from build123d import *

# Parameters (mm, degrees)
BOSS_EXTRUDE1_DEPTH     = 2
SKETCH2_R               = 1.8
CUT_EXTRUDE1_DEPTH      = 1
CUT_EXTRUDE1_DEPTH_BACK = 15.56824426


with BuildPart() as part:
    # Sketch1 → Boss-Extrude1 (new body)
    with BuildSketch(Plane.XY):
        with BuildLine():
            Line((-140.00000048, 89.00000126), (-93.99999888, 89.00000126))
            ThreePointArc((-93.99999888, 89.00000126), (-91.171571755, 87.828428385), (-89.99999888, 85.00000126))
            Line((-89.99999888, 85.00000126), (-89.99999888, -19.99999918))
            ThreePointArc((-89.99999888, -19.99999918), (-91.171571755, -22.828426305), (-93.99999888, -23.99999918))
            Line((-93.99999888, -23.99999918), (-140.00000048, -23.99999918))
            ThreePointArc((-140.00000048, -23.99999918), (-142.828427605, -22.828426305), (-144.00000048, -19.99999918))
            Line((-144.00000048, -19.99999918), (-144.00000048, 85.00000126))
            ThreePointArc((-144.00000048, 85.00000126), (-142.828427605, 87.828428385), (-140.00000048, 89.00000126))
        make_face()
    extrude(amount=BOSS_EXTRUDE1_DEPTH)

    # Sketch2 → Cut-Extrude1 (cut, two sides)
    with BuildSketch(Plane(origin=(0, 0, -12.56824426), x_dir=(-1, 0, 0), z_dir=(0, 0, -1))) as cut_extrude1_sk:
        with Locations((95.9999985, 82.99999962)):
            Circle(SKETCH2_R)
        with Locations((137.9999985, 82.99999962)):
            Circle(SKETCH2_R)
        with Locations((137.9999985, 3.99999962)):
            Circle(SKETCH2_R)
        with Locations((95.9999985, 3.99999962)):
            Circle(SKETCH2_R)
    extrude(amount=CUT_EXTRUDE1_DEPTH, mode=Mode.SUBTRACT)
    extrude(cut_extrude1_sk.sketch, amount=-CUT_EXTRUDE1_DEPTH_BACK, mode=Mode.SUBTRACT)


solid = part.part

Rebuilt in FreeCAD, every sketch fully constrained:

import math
import FreeCAD as App
import Part
import Sketcher
Q = App.Units.Quantity

doc = App.newDocument("Part")
body = doc.addObject("PartDesign::Body", "Body")

# Sketch on XY plane
sketch1 = body.newObject("Sketcher::SketchObject", "Sketch")
sketch1.AttachmentSupport = (doc.getObject("XY_Plane"), [""])
sketch1.MapMode = "FlatFace"
sketch1.addGeometry([
    Part.LineSegment(App.Vector(-93.999999, 89.000001, 0), App.Vector(-140, 89.000001, 0)),  # 0
    Part.ArcOfCircle(Part.Circle(App.Vector(-140, 85.000001, 0), App.Vector(0, 0, 1), 4), math.radians(90), math.radians(180)),  # 1
    Part.LineSegment(App.Vector(-144, 85.000001, 0), App.Vector(-144, -19.999999, 0)),  # 2
    Part.ArcOfCircle(Part.Circle(App.Vector(-140, -19.999999, 0), App.Vector(0, 0, 1), 4), math.radians(180), math.radians(270)),  # 3
    Part.LineSegment(App.Vector(-140, -23.999999, 0), App.Vector(-93.999999, -23.999999, 0)),  # 4
    Part.ArcOfCircle(Part.Circle(App.Vector(-93.999999, -19.999999, 0), App.Vector(0, 0, 1), 4), math.radians(-90), math.radians(0)),  # 5
    Part.LineSegment(App.Vector(-89.999999, -19.999999, 0), App.Vector(-89.999999, 85.000001, 0)),  # 6
    Part.ArcOfCircle(Part.Circle(App.Vector(-93.999999, 85.000001, 0), App.Vector(0, 0, 1), 4), math.radians(0), math.radians(90)),  # 7
], False)
sketch1.addConstraint([
    Sketcher.Constraint("Tangent", 0, 2, 1, 1),
    Sketcher.Constraint("Tangent", 1, 2, 2, 1),
    Sketcher.Constraint("Tangent", 2, 2, 3, 1),
    Sketcher.Constraint("Tangent", 3, 2, 4, 1),
    Sketcher.Constraint("Tangent", 4, 2, 5, 1),
    Sketcher.Constraint("Tangent", 5, 2, 6, 1),
    Sketcher.Constraint("Tangent", 6, 2, 7, 1),
    Sketcher.Constraint("Tangent", 7, 2, 0, 1),
    Sketcher.Constraint("Horizontal", 0),
    Sketcher.Constraint("Vertical", 2),
    Sketcher.Constraint("Horizontal", 4),
    Sketcher.Constraint("Vertical", 6),
    Sketcher.Constraint("Equal", 1, 3),
    Sketcher.Constraint("Equal", 3, 5),
    Sketcher.Constraint("Equal", 5, 7),
    Sketcher.Constraint("Radius", 1, Q("4 mm")),
    Sketcher.Constraint("DistanceX", 0, 2, 0, 1, Q("46.000002 mm")),
    Sketcher.Constraint("DistanceY", 2, 2, 2, 1, Q("105 mm")),
    Sketcher.Constraint("DistanceX", 1, 3, -1, 1, Q("140 mm")),
    Sketcher.Constraint("DistanceY", -1, 1, 1, 3, Q("85.000001 mm")),
])
pad1 = body.newObject("PartDesign::Pad", "Pad")
pad1.Profile = sketch1
pad1.Length = 2

# Sketch on XY plane
sketch2 = body.newObject("Sketcher::SketchObject", "Sketch001")
sketch2.AttachmentSupport = (doc.getObject("XY_Plane"), [""])
sketch2.MapMode = "FlatFace"
sketch2.AttachmentOffset = App.Placement(App.Vector(0, 0, -12.568244), App.Rotation())
sketch2.addGeometry([
    Part.Circle(App.Vector(-95.999999, 83, 0), App.Vector(0, 0, 1), 1.8),
    Part.Circle(App.Vector(-137.999999, 83, 0), App.Vector(0, 0, 1), 1.8),
    Part.Circle(App.Vector(-137.999999, 4, 0), App.Vector(0, 0, 1), 1.8),
    Part.Circle(App.Vector(-95.999999, 4, 0), App.Vector(0, 0, 1), 1.8),
], False)
sketch2.addConstraint([
    Sketcher.Constraint("Equal", 0, 1),
    Sketcher.Constraint("Equal", 1, 2),
    Sketcher.Constraint("Equal", 2, 3),
    Sketcher.Constraint("Horizontal", 0, 3, 1, 3),
    Sketcher.Constraint("Horizontal", 2, 3, 3, 3),
    Sketcher.Constraint("Vertical", 1, 3, 2, 3),
    Sketcher.Constraint("Vertical", 0, 3, 3, 3),
    Sketcher.Constraint("Diameter", 0, Q("3.6 mm")),
    Sketcher.Constraint("DistanceX", 0, 3, -1, 1, Q("95.999999 mm")),
    Sketcher.Constraint("DistanceY", -1, 1, 0, 3, Q("83 mm")),
    Sketcher.Constraint("DistanceX", 1, 3, -1, 1, Q("137.999999 mm")),
    Sketcher.Constraint("DistanceY", -1, 1, 2, 3, Q("4 mm")),
])
pocket1 = body.newObject("PartDesign::Pocket", "Pocket")
pocket1.Profile = sketch2
pocket1.Type = "ThroughAll"
pocket1.Midplane = True

doc.recompute()
